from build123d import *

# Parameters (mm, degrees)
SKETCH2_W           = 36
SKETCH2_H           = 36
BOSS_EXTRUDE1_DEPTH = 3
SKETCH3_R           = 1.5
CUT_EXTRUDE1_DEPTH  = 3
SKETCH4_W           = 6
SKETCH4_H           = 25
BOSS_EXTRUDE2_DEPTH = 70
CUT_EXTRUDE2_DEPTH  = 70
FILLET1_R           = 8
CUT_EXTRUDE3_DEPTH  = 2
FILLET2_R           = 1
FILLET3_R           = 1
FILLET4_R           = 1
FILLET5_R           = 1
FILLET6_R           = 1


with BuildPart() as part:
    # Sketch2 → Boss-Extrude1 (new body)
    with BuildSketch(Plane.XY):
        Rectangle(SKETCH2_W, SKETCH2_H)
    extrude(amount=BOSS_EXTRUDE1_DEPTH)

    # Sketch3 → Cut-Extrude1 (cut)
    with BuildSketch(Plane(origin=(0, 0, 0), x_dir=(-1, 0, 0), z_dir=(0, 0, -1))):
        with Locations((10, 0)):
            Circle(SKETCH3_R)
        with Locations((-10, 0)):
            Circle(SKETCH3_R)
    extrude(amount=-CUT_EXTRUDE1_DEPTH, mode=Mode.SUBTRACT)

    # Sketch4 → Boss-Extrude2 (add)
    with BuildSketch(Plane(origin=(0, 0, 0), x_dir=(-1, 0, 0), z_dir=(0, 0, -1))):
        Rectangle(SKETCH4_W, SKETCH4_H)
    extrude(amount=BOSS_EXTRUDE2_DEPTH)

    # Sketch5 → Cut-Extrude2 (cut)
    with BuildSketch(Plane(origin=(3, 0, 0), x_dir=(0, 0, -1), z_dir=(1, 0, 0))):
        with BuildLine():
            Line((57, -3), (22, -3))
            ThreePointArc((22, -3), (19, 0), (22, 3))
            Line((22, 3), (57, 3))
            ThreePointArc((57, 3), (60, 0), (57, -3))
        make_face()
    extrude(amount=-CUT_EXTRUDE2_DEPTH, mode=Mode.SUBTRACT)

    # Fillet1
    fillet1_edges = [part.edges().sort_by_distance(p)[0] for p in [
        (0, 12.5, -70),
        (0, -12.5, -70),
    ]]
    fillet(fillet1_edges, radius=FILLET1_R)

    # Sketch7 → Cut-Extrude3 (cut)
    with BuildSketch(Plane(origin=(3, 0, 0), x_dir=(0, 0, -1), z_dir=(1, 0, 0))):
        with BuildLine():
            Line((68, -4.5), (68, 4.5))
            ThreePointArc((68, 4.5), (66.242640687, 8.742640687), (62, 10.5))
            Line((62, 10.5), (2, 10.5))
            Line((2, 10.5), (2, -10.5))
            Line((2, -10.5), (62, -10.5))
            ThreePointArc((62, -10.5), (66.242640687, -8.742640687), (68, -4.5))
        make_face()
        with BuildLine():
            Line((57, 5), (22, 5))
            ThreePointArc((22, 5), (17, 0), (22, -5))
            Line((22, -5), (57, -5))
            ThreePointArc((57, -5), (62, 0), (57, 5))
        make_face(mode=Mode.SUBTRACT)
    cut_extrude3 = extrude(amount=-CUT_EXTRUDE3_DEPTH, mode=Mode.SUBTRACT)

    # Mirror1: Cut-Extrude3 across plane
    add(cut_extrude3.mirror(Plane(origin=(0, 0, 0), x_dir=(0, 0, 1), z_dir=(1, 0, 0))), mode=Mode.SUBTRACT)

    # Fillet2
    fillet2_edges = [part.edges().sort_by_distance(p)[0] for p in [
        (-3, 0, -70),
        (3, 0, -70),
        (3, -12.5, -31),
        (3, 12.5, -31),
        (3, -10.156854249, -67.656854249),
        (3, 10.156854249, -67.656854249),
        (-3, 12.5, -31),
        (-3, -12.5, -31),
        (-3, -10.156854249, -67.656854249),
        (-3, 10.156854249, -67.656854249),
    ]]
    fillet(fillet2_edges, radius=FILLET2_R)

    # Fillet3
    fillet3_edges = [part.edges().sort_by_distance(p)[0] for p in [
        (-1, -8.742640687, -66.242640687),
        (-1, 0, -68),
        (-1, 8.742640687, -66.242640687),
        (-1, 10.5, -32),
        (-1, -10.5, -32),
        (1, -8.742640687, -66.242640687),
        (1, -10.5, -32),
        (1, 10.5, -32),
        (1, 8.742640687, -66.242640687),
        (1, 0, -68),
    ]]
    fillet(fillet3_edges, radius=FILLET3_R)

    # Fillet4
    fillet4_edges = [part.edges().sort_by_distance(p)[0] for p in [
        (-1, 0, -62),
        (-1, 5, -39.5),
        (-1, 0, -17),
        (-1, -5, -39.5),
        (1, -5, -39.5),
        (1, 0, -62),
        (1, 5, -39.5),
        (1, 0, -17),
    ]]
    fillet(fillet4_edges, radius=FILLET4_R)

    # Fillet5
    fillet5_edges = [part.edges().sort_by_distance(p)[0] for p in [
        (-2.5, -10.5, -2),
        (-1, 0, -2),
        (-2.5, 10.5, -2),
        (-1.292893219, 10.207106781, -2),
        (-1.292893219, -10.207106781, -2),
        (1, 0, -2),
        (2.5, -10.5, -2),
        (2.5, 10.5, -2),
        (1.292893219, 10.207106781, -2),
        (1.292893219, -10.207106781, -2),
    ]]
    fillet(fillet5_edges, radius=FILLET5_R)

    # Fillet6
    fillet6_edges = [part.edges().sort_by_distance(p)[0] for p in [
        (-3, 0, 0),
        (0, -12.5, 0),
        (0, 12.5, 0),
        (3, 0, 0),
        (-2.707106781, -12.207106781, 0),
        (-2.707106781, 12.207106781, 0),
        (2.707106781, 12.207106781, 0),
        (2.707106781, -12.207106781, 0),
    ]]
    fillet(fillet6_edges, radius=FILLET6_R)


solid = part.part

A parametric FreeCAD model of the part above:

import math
import FreeCAD as App
import Part
import Sketcher


def edges_at(feature, points):
    """Names of the edges that pass closest to the given points."""
    edges = feature.Shape.Edges
    near = lambda p: min(range(len(edges)), key=lambda i: edges[i].distToShape(Part.Vertex(*p))[0])
    return sorted({f"Edge{near(p) + 1}" for p in points})


def add_polygon(sketch, points):
    """Adds a closed chain of lines whose ends are joined by coincident constraints."""
    first, n = sketch.GeometryCount, len(points)
    for a, b in zip(points, points[1:] + points[:1]):
        sketch.addGeometry(Part.LineSegment(App.Vector(*a, 0), App.Vector(*b, 0)), False)
    for i in range(n):
        sketch.addConstraint(Sketcher.Constraint("Coincident", first + i, 2, first + (i + 1) % n, 1))

doc = App.newDocument("Part")
body = doc.addObject("PartDesign::Body", "Body")

# Sketch on XY plane
sketch1 = body.newObject("Sketcher::SketchObject", "Sketch")
sketch1.AttachmentSupport = (doc.getObject("XY_Plane"), [""])
sketch1.MapMode = "FlatFace"
add_polygon(sketch1, [(-18, 18), (-18, -18), (18, -18), (18, 18)])  # lines 0-3
sketch1.addConstraint(Sketcher.Constraint("Vertical", 0))
sketch1.addConstraint(Sketcher.Constraint("Horizontal", 1))
sketch1.addConstraint(Sketcher.Constraint("Vertical", 2))
sketch1.addConstraint(Sketcher.Constraint("Horizontal", 3))
sketch1.addConstraint(Sketcher.Constraint("Symmetric", 0, 2, 2, 2, -1, 1))
sketch1.addConstraint(Sketcher.Constraint("Equal", 3, 0))
sketch1.addConstraint(Sketcher.Constraint("DistanceX", 1, 1, 1, 2, 36.0))
pad1 = body.newObject("PartDesign::Pad", "Pad")
pad1.Profile = sketch1
pad1.Length = 3

# Sketch on XY plane
sketch2 = body.newObject("Sketcher::SketchObject", "Sketch001")
sketch2.AttachmentSupport = (doc.getObject("XY_Plane"), [""])
sketch2.MapMode = "FlatFace"
sketch2.addGeometry(Part.Circle(App.Vector(-10, 0, 0), App.Vector(0, 0, 1), 1.5), False)
sketch2.addGeometry(Part.Circle(App.Vector(10, 0, 0), App.Vector(0, 0, 1), 1.5), False)
sketch2.addConstraint(Sketcher.Constraint("Equal", 0, 1))
sketch2.addConstraint(Sketcher.Constraint("Symmetric", 0, 3, 1, 3, -1, 1))
sketch2.addConstraint(Sketcher.Constraint("PointOnObject", 0, 3, -1))
sketch2.addConstraint(Sketcher.Constraint("Diameter", 0, 3.0))
sketch2.addConstraint(Sketcher.Constraint("DistanceX", 0, 3, -1, 1, 10.0))
pocket1 = body.newObject("PartDesign::Pocket", "Pocket")
pocket1.Profile = sketch2
pocket1.Length = 3
pocket1.Reversed = True

# Sketch on XY plane
sketch3 = body.newObject("Sketcher::SketchObject", "Sketch002")
sketch3.AttachmentSupport = (doc.getObject("XY_Plane"), [""])
sketch3.MapMode = "FlatFace"
add_polygon(sketch3, [(3, 12), (3, -12), (-3, -12), (-3, 12)])  # lines 0-3
sketch3.addConstraint(Sketcher.Constraint("Vertical", 0))
sketch3.addConstraint(Sketcher.Constraint("Horizontal", 1))
sketch3.addConstraint(Sketcher.Constraint("Vertical", 2))
sketch3.addConstraint(Sketcher.Constraint("Horizontal", 3))
sketch3.addConstraint(Sketcher.Constraint("Symmetric", 0, 2, 2, 2, -1, 1))
sketch3.addConstraint(Sketcher.Constraint("DistanceX", 1, 2, 1, 1, 6.0))
sketch3.addConstraint(Sketcher.Constraint("DistanceY", 0, 2, 0, 1, 25.0))
pad2 = body.newObject("PartDesign::Pad", "Pad001")
pad2.Profile = sketch3
pad2.Length = 70
pad2.Reversed = True

# Sketch on YZ plane
sketch4 = body.newObject("Sketcher::SketchObject", "Sketch003")
sketch4.AttachmentSupport = (doc.getObject("YZ_Plane"), [""])
sketch4.MapMode = "FlatFace"
sketch4.AttachmentOffset = App.Placement(App.Vector(0, 0, 3), App.Rotation())
sketch4.addGeometry(Part.LineSegment(App.Vector(-3, -22, 0), App.Vector(-3, -57, 0)), False)
sketch4.addGeometry(Part.ArcOfCircle(Part.Circle(App.Vector(0, -57, 0), App.Vector(0, 0, 1), 3), math.radians(180), math.radians(360)), False)
sketch4.addGeometry(Part.LineSegment(App.Vector(3, -57, 0), App.Vector(3, -22, 0)), False)
sketch4.addGeometry(Part.ArcOfCircle(Part.Circle(App.Vector(0, -22, 0), App.Vector(0, 0, 1), 3), math.radians(0), math.radians(180)), False)
sketch4.addConstraint(Sketcher.Constraint("Tangent", 0, 2, 1, 1))
sketch4.addConstraint(Sketcher.Constraint("Tangent", 1, 2, 2, 1))
sketch4.addConstraint(Sketcher.Constraint("Tangent", 2, 2, 3, 1))
sketch4.addConstraint(Sketcher.Constraint("Tangent", 3, 2, 0, 1))
sketch4.addConstraint(Sketcher.Constraint("Vertical", 0))
sketch4.addConstraint(Sketcher.Constraint("Vertical", 2))
sketch4.addConstraint(Sketcher.Constraint("PointOnObject", 1, 3, -2))
sketch4.addConstraint(Sketcher.Constraint("Radius", 1, 3.0))
sketch4.addConstraint(Sketcher.Constraint("DistanceY", 0, 2, 0, 1, 35.0))
sketch4.addConstraint(Sketcher.Constraint("DistanceY", 1, 3, -1, 1, 57.0))
pocket2 = body.newObject("PartDesign::Pocket", "Pocket001")
pocket2.Profile = sketch4
pocket2.Length = 70
doc.recompute()

fillet = body.newObject("PartDesign::Fillet", "Fillet")
fillet.Base = (pocket2, edges_at(pocket2, [(0, 12.5, -70), (0, -12.5, -70)]))
fillet.Radius = 8

# Sketch on YZ plane
sketch5 = body.newObject("Sketcher::SketchObject", "Sketch004")
sketch5.AttachmentSupport = (doc.getObject("YZ_Plane"), [""])
sketch5.MapMode = "FlatFace"
sketch5.AttachmentOffset = App.Placement(App.Vector(0, 0, 3), App.Rotation())
sketch5.addGeometry(Part.LineSegment(App.Vector(-4, -68, 0), App.Vector(4, -68, 0)), False)
sketch5.addGeometry(Part.ArcOfCircle(Part.Circle(App.Vector(4, -62, 0), App.Vector(0, 0, 1), 6), math.radians(-90), math.radians(0)), False)
sketch5.addGeometry(Part.LineSegment(App.Vector(10, -62, 0), App.Vector(10, -2, 0)), False)
sketch5.addGeometry(Part.LineSegment(App.Vector(10, -2, 0), App.Vector(-10, -2, 0)), False)
sketch5.addGeometry(Part.LineSegment(App.Vector(-10, -2, 0), App.Vector(-10, -62, 0)), False)
sketch5.addGeometry(Part.ArcOfCircle(Part.Circle(App.Vector(-4, -62, 0), App.Vector(0, 0, 1), 6), math.radians(180), math.radians(270)), False)
sketch5.addGeometry(Part.LineSegment(App.Vector(5, -22, 0), App.Vector(5, -57, 0)), False)
sketch5.addGeometry(Part.ArcOfCircle(Part.Circle(App.Vector(0, -57, 0), App.Vector(0, 0, 1), 5), math.radians(180), math.radians(360)), False)
sketch5.addGeometry(Part.LineSegment(App.Vector(-5, -57, 0), App.Vector(-5, -22, 0)), False)
sketch5.addGeometry(Part.ArcOfCircle(Part.Circle(App.Vector(0, -22, 0), App.Vector(0, 0, 1), 5), math.radians(0), math.radians(180)), False)
sketch5.addConstraint(Sketcher.Constraint("Tangent", 0, 2, 1, 1))
sketch5.addConstraint(Sketcher.Constraint("Tangent", 1, 2, 2, 1))
sketch5.addConstraint(Sketcher.Constraint("Coincident", 2, 2, 3, 1))
sketch5.addConstraint(Sketcher.Constraint("Coincident", 3, 2, 4, 1))
sketch5.addConstraint(Sketcher.Constraint("Tangent", 4, 2, 5, 1))
sketch5.addConstraint(Sketcher.Constraint("Tangent", 5, 2, 0, 1))
sketch5.addConstraint(Sketcher.Constraint("Tangent", 6, 2, 7, 2))
sketch5.addConstraint(Sketcher.Constraint("Tangent", 7, 1, 8, 1))
sketch5.addConstraint(Sketcher.Constraint("Tangent", 8, 2, 9, 2))
sketch5.addConstraint(Sketcher.Constraint("Tangent", 9, 1, 6, 1))
sketch5.addConstraint(Sketcher.Constraint("Horizontal", 0))
sketch5.addConstraint(Sketcher.Constraint("Vertical", 2))
sketch5.addConstraint(Sketcher.Constraint("Horizontal", 3))
sketch5.addConstraint(Sketcher.Constraint("Vertical", 4))
sketch5.addConstraint(Sketcher.Constraint("Vertical", 6))
sketch5.addConstraint(Sketcher.Constraint("Vertical", 8))
sketch5.addConstraint(Sketcher.Constraint("Equal", 1, 5))
sketch5.addConstraint(Sketcher.Constraint("PointOnObject", 7, 3, -2))
sketch5.addConstraint(Sketcher.Constraint("Radius", 1, 6.0))
sketch5.addConstraint(Sketcher.Constraint("Radius", 7, 5.0))
sketch5.addConstraint(Sketcher.Constraint("DistanceX", 0, 1, 0, 2, 9.0))
sketch5.addConstraint(Sketcher.Constraint("DistanceY", 2, 1, 2, 2, 60.0))
sketch5.addConstraint(Sketcher.Constraint("DistanceY", 6, 2, 6, 1, 35.0))
sketch5.addConstraint(Sketcher.Constraint("DistanceY", 1, 3, -1, 1, 62.0))
sketch5.addConstraint(Sketcher.Constraint("DistanceY", 7, 3, -1, 1, 57.0))
sketch5.addConstraint(Sketcher.Constraint("DistanceX", -1, 1, 1, 3, 4.5))
pocket3 = body.newObject("PartDesign::Pocket", "Pocket002")
pocket3.Profile = sketch5
pocket3.Length = 2
doc.recompute()

mirrored = body.newObject("PartDesign::Mirrored", "Mirrored")
mirrored.Originals = [pocket3]
mirrored.MirrorPlane = (doc.getObject("YZ_Plane"), [""])
body.Tip = mirrored
doc.recompute()

fillet2 = body.newObject("PartDesign::Fillet", "Fillet001")
fillet2.Base = (mirrored, edges_at(mirrored, [
    (-3, 0, -70),
    (3, 0, -70),
    (3, -12.5, -31),
    (3, 12.5, -31),
    (3, -10.157, -67.657),
    (3, 10.157, -67.657),
    (-3, 12.5, -31),
    (-3, -12.5, -31),
    (-3, -10.157, -67.657),
    (-3, 10.157, -67.657),
]))
fillet2.Radius = 1
doc.recompute()

fillet3 = body.newObject("PartDesign::Fillet", "Fillet002")
fillet3.Base = (fillet2, edges_at(fillet2, [
    (-1, -8.743, -66.243),
    (-1, 0, -68),
    (-1, 8.743, -66.243),
    (-1, 10.5, -32),
    (-1, -10.5, -32),
    (1, -8.743, -66.243),
    (1, -10.5, -32),
    (1, 10.5, -32),
    (1, 8.743, -66.243),
    (1, 0, -68),
]))
fillet3.Radius = 1
doc.recompute()

fillet4 = body.newObject("PartDesign::Fillet", "Fillet003")
fillet4.Base = (fillet3, edges_at(fillet3, [
    (-1, 0, -62),
    (-1, 5, -39.5),
    (-1, 0, -17),
    (-1, -5, -39.5),
    (1, -5, -39.5),
    (1, 0, -62),
    (1, 5, -39.5),
    (1, 0, -17),
]))
fillet4.Radius = 1
doc.recompute()

fillet5 = body.newObject("PartDesign::Fillet", "Fillet004")
fillet5.Base = (fillet4, edges_at(fillet4, [
    (-2.5, -10.5, -2),
    (-1, 0, -2),
    (-2.5, 10.5, -2),
    (-1.293, 10.207, -2),
    (-1.293, -10.207, -2),
    (1, 0, -2),
    (2.5, -10.5, -2),
    (2.5, 10.5, -2),
    (1.293, 10.207, -2),
    (1.293, -10.207, -2),
]))
fillet5.Radius = 1
doc.recompute()

fillet6 = body.newObject("PartDesign::Fillet", "Fillet005")
fillet6.Base = (fillet5, edges_at(fillet5, [
    (-3, 0, 0),
    (0, -12.5, 0),
    (0, 12.5, 0),
    (3, 0, 0),
    (-2.707, -12.207, 0),
    (-2.707, 12.207, 0),
    (2.707, 12.207, 0),
    (2.707, -12.207, 0),
]))
fillet6.Radius = 1

doc.recompute()
